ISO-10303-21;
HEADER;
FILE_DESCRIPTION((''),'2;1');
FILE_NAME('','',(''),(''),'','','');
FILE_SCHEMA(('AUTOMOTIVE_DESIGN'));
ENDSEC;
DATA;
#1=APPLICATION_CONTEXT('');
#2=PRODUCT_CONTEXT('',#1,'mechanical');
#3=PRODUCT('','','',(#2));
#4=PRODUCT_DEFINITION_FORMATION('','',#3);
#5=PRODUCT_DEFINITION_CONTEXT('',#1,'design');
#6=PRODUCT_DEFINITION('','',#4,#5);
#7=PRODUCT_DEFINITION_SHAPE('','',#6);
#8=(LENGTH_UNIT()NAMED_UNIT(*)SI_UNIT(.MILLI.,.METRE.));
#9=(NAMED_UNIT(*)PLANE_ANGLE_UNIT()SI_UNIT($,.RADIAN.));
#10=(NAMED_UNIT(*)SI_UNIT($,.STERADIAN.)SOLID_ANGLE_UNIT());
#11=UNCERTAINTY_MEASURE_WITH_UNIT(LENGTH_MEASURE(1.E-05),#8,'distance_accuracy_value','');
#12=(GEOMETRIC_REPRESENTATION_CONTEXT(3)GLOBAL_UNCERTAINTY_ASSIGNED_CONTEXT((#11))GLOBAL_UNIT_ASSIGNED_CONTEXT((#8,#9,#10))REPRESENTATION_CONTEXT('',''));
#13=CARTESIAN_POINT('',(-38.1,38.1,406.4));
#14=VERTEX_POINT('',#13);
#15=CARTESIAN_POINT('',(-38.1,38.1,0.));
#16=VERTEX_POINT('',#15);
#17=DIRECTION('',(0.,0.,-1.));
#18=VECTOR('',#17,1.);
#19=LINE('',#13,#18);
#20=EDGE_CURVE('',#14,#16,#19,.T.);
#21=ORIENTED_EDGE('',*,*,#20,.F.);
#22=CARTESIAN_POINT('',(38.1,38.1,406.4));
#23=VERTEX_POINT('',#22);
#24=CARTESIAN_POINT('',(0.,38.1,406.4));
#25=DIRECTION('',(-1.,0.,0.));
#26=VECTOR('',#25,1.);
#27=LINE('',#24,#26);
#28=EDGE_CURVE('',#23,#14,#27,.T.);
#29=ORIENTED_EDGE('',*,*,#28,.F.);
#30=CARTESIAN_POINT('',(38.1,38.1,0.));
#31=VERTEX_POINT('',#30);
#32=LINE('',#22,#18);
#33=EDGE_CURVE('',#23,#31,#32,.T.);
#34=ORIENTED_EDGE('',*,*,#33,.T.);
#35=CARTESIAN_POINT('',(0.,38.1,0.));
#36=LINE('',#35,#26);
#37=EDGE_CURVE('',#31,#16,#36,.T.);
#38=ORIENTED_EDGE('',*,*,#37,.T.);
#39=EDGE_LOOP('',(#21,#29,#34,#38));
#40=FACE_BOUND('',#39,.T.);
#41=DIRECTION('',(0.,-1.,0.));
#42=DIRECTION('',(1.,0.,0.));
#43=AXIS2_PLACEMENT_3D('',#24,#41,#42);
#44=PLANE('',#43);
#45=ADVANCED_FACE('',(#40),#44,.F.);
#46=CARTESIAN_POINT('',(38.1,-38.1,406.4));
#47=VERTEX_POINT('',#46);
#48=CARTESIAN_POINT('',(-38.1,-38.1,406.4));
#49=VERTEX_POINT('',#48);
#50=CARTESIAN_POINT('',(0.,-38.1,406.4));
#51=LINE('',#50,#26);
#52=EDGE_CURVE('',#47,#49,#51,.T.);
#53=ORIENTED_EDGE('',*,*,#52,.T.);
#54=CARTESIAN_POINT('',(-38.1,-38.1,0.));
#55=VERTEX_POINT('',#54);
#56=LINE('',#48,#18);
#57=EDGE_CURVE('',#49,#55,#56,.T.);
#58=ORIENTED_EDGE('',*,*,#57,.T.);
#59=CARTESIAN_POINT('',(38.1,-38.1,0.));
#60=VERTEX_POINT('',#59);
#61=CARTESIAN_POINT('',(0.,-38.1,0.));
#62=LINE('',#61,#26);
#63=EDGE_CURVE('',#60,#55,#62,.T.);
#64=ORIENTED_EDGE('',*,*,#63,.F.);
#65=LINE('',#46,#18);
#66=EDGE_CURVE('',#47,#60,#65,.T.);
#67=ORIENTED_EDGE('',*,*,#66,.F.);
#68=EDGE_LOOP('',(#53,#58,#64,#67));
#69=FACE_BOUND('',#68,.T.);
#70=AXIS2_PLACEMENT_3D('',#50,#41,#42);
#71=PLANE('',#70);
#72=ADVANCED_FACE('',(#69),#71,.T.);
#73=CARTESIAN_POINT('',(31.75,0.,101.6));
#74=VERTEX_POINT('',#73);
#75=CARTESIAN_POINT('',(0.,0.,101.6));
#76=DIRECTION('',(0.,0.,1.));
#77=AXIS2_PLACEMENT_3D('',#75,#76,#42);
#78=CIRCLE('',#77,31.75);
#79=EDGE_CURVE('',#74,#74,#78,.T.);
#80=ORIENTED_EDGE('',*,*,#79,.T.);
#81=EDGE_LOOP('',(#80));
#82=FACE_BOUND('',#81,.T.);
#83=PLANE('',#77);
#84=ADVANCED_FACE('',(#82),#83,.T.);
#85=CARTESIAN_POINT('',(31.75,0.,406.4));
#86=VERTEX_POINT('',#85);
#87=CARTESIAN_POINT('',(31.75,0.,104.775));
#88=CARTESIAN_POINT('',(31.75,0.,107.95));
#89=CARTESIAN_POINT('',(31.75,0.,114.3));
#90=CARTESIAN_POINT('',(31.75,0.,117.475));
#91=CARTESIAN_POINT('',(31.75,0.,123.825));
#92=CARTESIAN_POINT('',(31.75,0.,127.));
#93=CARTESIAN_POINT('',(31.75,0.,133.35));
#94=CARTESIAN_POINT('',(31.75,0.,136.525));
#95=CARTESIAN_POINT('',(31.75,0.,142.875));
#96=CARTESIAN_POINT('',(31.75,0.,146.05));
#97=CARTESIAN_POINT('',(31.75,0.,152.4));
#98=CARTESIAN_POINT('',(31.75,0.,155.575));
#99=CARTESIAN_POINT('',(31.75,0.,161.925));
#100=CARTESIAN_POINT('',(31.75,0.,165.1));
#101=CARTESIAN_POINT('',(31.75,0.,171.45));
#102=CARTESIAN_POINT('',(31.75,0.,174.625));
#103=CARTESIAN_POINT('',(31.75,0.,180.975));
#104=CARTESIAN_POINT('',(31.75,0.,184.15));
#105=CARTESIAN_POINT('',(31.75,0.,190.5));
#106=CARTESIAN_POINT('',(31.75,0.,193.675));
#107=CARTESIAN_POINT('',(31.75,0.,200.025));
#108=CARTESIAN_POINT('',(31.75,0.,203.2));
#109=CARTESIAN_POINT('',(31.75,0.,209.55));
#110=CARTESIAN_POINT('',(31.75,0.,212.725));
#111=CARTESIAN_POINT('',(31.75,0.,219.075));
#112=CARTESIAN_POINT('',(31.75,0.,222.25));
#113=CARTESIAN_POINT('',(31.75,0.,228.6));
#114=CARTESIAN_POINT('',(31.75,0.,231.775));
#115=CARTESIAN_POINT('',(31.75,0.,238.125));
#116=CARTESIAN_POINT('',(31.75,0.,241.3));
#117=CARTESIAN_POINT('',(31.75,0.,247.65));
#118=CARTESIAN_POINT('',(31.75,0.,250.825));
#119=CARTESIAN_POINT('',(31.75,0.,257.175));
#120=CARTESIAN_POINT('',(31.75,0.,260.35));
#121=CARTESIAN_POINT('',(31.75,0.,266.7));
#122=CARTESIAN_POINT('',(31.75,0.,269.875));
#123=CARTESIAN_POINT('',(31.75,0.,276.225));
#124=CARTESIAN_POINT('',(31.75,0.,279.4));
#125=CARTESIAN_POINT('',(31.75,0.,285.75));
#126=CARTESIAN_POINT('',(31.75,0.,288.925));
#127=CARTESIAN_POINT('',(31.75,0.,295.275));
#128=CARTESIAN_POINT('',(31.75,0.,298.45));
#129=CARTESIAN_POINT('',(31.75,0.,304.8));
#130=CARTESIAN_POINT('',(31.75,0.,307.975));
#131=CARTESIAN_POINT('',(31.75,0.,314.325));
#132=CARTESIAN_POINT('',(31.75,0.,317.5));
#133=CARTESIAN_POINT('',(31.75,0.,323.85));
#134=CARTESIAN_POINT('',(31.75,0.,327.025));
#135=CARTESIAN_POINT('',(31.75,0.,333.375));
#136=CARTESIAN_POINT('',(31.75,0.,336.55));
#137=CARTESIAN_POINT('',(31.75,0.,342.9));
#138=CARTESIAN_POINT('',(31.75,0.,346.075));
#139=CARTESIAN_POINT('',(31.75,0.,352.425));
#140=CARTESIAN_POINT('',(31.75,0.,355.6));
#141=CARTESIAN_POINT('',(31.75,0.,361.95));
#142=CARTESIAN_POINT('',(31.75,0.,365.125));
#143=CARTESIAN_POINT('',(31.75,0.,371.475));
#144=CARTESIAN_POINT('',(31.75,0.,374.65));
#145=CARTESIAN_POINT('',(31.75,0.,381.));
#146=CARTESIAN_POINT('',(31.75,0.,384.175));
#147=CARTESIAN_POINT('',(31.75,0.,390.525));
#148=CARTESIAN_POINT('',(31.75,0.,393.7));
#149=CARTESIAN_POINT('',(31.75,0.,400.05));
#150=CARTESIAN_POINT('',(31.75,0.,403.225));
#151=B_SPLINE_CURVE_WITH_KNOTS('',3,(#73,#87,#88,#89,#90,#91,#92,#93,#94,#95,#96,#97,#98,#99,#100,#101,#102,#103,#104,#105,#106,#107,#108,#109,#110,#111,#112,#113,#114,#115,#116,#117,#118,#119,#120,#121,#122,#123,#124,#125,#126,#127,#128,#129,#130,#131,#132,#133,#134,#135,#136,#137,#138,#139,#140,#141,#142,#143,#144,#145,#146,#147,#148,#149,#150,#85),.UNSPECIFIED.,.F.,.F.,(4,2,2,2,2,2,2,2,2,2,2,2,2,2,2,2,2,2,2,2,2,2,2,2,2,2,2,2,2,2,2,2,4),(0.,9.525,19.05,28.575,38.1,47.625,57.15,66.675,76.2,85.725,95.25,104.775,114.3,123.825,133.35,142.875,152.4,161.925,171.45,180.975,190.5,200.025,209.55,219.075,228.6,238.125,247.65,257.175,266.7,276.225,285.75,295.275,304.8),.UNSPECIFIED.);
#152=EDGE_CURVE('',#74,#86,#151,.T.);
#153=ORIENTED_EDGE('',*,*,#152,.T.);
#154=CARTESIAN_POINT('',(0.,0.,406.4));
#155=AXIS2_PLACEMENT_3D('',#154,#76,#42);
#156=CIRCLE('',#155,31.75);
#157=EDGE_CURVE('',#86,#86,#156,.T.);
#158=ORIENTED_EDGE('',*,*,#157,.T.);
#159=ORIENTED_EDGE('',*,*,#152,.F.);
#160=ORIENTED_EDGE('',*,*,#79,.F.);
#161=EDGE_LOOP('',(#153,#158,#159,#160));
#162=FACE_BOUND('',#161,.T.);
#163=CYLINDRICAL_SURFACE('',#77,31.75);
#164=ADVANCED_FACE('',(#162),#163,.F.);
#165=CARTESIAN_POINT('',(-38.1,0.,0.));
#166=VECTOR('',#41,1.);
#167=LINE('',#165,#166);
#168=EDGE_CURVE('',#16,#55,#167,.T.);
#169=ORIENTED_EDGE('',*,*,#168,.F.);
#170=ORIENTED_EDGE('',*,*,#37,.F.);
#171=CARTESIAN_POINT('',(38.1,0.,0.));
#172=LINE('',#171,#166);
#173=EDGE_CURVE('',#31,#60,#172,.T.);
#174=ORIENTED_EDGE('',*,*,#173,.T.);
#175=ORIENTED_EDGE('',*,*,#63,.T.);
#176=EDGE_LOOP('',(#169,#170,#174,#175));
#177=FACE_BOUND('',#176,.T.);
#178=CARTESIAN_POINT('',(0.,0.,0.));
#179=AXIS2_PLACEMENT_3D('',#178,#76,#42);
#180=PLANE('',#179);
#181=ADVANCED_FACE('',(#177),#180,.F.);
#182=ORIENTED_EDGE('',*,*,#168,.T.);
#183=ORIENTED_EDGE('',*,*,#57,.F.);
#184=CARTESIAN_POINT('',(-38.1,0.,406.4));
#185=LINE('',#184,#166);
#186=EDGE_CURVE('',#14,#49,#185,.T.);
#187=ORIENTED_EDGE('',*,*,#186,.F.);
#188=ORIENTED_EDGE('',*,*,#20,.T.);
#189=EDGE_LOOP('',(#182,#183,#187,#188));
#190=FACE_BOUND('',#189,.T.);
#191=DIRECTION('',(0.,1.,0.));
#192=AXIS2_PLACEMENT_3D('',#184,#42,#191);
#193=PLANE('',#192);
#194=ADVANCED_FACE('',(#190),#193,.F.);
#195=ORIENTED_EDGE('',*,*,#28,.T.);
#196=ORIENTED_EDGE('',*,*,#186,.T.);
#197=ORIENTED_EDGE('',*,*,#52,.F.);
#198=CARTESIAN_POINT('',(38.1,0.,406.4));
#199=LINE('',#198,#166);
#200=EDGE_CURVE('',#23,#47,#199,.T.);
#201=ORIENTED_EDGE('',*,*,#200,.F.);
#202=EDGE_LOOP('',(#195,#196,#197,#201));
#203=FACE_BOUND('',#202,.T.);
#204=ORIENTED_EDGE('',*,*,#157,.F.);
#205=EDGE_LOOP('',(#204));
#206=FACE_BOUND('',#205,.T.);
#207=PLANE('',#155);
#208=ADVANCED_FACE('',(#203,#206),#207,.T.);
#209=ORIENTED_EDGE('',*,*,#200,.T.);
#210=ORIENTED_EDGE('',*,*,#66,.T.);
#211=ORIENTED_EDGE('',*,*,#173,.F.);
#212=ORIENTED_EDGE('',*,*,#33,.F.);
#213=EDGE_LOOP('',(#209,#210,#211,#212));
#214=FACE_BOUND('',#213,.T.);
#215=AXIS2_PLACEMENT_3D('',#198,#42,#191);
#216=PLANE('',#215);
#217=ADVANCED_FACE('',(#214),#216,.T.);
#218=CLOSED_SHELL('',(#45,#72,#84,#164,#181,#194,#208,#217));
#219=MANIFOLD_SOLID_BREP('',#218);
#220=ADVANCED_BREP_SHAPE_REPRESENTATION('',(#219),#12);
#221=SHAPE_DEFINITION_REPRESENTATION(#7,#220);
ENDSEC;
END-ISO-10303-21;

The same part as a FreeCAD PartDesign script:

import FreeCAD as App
import Part
import Sketcher
Q = App.Units.Quantity


def add_polygon(sketch, points):
    """Adds a closed chain of lines whose ends are joined by coincident constraints."""
    first, n = sketch.GeometryCount, len(points)
    for a, b in zip(points, points[1:] + points[:1]):
        sketch.addGeometry(Part.LineSegment(App.Vector(*a, 0), App.Vector(*b, 0)), False)
    for i in range(n):
        sketch.addConstraint(Sketcher.Constraint("Coincident", first + i, 2, first + (i + 1) % n, 1))

doc = App.newDocument("Part")
body = doc.addObject("PartDesign::Body", "Body")

# Sketch on XY plane
sketch1 = doc.addObject("Sketcher::SketchObject", "Sketch")
body.addObject(sketch1)
sketch1.AttachmentSupport = (doc.XY_Plane, [""])
sketch1.MapMode = "FlatFace"
add_polygon(sketch1, [(-38, 38), (-38, -38), (38, -38), (38, 38)])  # lines 0-3
sketch1.addConstraint([
    Sketcher.Constraint("Vertical", 0),
    Sketcher.Constraint("Horizontal", 1),
    Sketcher.Constraint("Vertical", 2),
    Sketcher.Constraint("Horizontal", 3),
    Sketcher.Constraint("Symmetric", 0, 2, 2, 2, -1, 1),
    Sketcher.Constraint("Equal", 3, 0),
    Sketcher.Constraint("DistanceX", 1, 1, 1, 2, Q("3 in")),
])
pad1 = doc.addObject("PartDesign::Pad", "Pad")
body.addObject(pad1)
pad1.Profile = sketch1
pad1.Length = Q("16 in")

# Sketch on XY plane
sketch2 = doc.addObject("Sketcher::SketchObject", "Sketch001")
body.addObject(sketch2)
sketch2.AttachmentSupport = (doc.XY_Plane, [""])
sketch2.MapMode = "FlatFace"
sketch2.AttachmentOffset = App.Placement(App.Vector(0, 0, 16 * 25.4), App.Rotation())
sketch2.addGeometry(Part.Circle(App.Vector(0, 0, 0), App.Vector(0, 0, 1), 32), False)
sketch2.addConstraint([
    Sketcher.Constraint("Coincident", 0, 3, -1, 1),
    Sketcher.Constraint("Diameter", 0, Q("2.5 in")),
])
pocket1 = doc.addObject("PartDesign::Pocket", "Pocket")
body.addObject(pocket1)
pocket1.Profile = sketch2
pocket1.Length = Q("12 in")

doc.recompute()
